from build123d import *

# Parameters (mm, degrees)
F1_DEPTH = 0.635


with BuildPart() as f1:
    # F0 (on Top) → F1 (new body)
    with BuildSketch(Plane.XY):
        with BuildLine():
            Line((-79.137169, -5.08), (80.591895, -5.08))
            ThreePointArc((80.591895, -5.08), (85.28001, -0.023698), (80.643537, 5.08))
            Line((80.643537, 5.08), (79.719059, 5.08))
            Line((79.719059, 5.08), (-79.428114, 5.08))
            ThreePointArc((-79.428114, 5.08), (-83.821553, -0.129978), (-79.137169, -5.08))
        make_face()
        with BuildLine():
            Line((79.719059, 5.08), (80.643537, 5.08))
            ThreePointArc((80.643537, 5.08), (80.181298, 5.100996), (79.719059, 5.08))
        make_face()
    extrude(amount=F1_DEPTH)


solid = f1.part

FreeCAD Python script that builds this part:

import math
import FreeCAD as App
import Part
import Sketcher
from FreeCAD import Vector
Q = App.Units.Quantity

doc = App.newDocument("Part")
body = doc.addObject("PartDesign::Body", "Body")

# Sketch on XY plane
sketch1 = body.newObject("Sketcher::SketchObject", "Sketch")
sketch1.AttachmentSupport = (doc.getObject("XY_Plane"), [""])
sketch1.MapMode = "FlatFace"
sketch1.addGeometry([
    Part.LineSegment(Vector(-79.137169, -5.08, 0), Vector(80.591895, -5.08, 0)),  # 0
    Part.ArcOfCircle(Part.Circle(Vector(80.181298, 0.002218, 0), Vector(0, 0, 1), 5.098777), math.radians(-85.381058), math.radians(84.798609)),  # 1
    Part.ArcOfCircle(Part.Circle(Vector(80.181298, 0.002269, 0), Vector(0, 0, 1), 5.098727), math.radians(84.798553), math.radians(95.201447)),  # 2
    Part.LineSegment(Vector(79.719059, 5.08, 0), Vector(-79.428114, 5.08, 0)),  # 3
    Part.ArcOfCircle(Part.Circle(Vector(-78.709301, 0.016418, 0), Vector(0, 0, 1), 5.114348), math.radians(98.079575), math.radians(265.201009)),  # 4
], False)
sketch1.addConstraint([
    Sketcher.Constraint("Coincident", 0, 2, 1, 1),
    Sketcher.Constraint("Coincident", 1, 2, 2, 1),
    Sketcher.Constraint("Coincident", 2, 2, 3, 1),
    Sketcher.Constraint("Coincident", 3, 2, 4, 1),
    Sketcher.Constraint("Coincident", 4, 2, 0, 1),
    Sketcher.Constraint("Horizontal", 0),
    Sketcher.Constraint("Horizontal", 3),
    Sketcher.Constraint("DistanceY", 0, 2, -1, 1, Q("0.2 in")),
    Sketcher.Constraint("DistanceY", -1, 1, 1, 2, Q("0.2 in")),
    Sketcher.Constraint("DistanceY", -1, 1, 2, 2, Q("0.2 in")),
    Sketcher.Constraint("Radius", 1, 5.098777),
    Sketcher.Constraint("Radius", 2, 5.098727),
    Sketcher.Constraint("Radius", 4, 5.114348),
    Sketcher.Constraint("DistanceX", -1, 1, 1, 3, 80.181298),
    Sketcher.Constraint("DistanceX", -1, 1, 2, 3, 80.181298),
    Sketcher.Constraint("DistanceX", 4, 3, -1, 1, 78.709301),
    Sketcher.Constraint("DistanceY", 1, 3, 4, 3, 0.0142),
    Sketcher.Constraint("DistanceX", 0, 1, 0, 2, 159.729064),
])
pad1 = body.newObject("PartDesign::Pad", "Pad")
pad1.Profile = sketch1
pad1.Length = Q("0.025 in")

doc.recompute()
